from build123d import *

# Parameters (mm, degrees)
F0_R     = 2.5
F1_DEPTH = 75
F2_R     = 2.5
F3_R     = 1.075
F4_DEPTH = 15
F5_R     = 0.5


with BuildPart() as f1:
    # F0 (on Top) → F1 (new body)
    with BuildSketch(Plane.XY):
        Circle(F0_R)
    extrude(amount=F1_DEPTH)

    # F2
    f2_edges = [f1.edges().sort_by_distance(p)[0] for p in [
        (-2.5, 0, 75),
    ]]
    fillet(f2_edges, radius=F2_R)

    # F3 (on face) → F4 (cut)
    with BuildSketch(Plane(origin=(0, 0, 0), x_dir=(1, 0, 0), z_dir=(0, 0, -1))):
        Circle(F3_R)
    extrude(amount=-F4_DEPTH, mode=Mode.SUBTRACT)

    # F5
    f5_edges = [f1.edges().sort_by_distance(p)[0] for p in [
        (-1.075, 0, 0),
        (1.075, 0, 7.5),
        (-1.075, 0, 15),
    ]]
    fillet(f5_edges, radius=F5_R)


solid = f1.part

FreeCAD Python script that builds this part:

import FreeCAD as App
import Part
import Sketcher

V = App.Vector


def edges_at(feature, points):
    """Names of the edges that pass closest to the given points."""
    edges = feature.Shape.Edges
    near = lambda p: min(range(len(edges)), key=lambda i: edges[i].distToShape(Part.Vertex(*p))[0])
    return sorted({f"Edge{near(p) + 1}" for p in points})

doc = App.newDocument("Part")
body = doc.addObject("PartDesign::Body", "Body")

sketch1 = body.newObject("Sketcher::SketchObject", "Sketch")
sketch1.AttachmentSupport = (doc.getObject("XY_Plane"), [""])
sketch1.MapMode = "FlatFace"
sketch1.addGeometry(Part.Circle(V(0, 0, 0), V(0, 0, 1), 2.5), False)
sketch1.addConstraint(Sketcher.Constraint("Coincident", 0, 3, -1, 1))
sketch1.addConstraint(Sketcher.Constraint("Diameter", 0, 5.0))
pad1 = body.newObject("PartDesign::Pad", "Pad")
pad1.Profile = sketch1
pad1.Length = 75
doc.recompute()

fillet = body.newObject("PartDesign::Fillet", "Fillet")
fillet.Base = (pad1, edges_at(pad1, [(-2.5, 0, 75)]))
fillet.Radius = 2.5

sketch2 = body.newObject("Sketcher::SketchObject", "Sketch001")
sketch2.AttachmentSupport = (doc.getObject("XY_Plane"), [""])
sketch2.MapMode = "FlatFace"
sketch2.addGeometry(Part.Circle(V(0, 0, 0), V(0, 0, 1), 1.1), False)
sketch2.addConstraint(Sketcher.Constraint("Coincident", 0, 3, -1, 1))
sketch2.addConstraint(Sketcher.Constraint("Diameter", 0, 2.15))
pocket1 = body.newObject("PartDesign::Pocket", "Pocket")
pocket1.Profile = sketch2
pocket1.Length = 15
pocket1.Reversed = True
doc.recompute()

fillet2 = body.newObject("PartDesign::Fillet", "Fillet001")
fillet2.Base = (pocket1, edges_at(pocket1, [(-1.075, 0, 0), (1.075, 0, 7.5), (-1.075, 0, 15)]))
fillet2.Radius = 0.5

doc.recompute()
